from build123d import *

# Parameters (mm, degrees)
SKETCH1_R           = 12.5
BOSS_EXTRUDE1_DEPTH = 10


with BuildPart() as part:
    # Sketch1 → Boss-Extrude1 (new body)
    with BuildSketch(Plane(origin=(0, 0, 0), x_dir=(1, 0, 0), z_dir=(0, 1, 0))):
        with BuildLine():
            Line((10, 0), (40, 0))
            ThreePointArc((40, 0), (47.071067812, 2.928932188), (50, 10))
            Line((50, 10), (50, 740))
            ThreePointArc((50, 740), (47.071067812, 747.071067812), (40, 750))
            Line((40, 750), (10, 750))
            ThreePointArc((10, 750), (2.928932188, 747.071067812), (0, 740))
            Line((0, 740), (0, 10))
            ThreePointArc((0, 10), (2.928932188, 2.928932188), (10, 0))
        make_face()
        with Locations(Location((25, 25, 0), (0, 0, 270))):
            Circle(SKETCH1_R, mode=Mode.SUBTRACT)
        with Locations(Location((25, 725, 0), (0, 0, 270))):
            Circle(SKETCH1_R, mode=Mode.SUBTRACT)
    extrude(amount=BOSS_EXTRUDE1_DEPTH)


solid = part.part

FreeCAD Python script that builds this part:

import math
import FreeCAD as App
import Part
import Sketcher
from FreeCAD import Vector
Q = App.Units.Quantity

doc = App.newDocument("Part")
body = doc.addObject("PartDesign::Body", "Body")

sketch1 = doc.addObject("Sketcher::SketchObject", "Sketch")
body.addObject(sketch1)
sketch1.AttachmentSupport = (doc.XZ_Plane, [""])
sketch1.MapMode = "FlatFace"
sketch1.addGeometry([
    Part.LineSegment(Vector(10, 0, 0), Vector(40, 0, 0)),
    Part.ArcOfCircle(Part.Circle(Vector(40, -10, 0), Vector(0, 0, 1), 10), math.radians(0), math.radians(90)),
    Part.LineSegment(Vector(50, -10, 0), Vector(50, -740, 0)),
    Part.ArcOfCircle(Part.Circle(Vector(40, -740, 0), Vector(0, 0, 1), 10), math.radians(-90), math.radians(0)),
    Part.LineSegment(Vector(40, -750, 0), Vector(10, -750, 0)),
    Part.ArcOfCircle(Part.Circle(Vector(10, -740, 0), Vector(0, 0, 1), 10), math.radians(180), math.radians(270)),
    Part.LineSegment(Vector(0, -740, 0), Vector(0, -10, 0)),
    Part.ArcOfCircle(Part.Circle(Vector(10, -10, 0), Vector(0, 0, 1), 10), math.radians(90), math.radians(180)),
    Part.Circle(Vector(25, -25, 0), Vector(0, 0, 1), 12),
    Part.Circle(Vector(25, -725, 0), Vector(0, 0, 1), 12),
], False)
sketch1.addConstraint([
    Sketcher.Constraint("Tangent", 0, 2, 1, 2),
    Sketcher.Constraint("Tangent", 1, 1, 2, 1),
    Sketcher.Constraint("Tangent", 2, 2, 3, 2),
    Sketcher.Constraint("Tangent", 3, 1, 4, 1),
    Sketcher.Constraint("Tangent", 4, 2, 5, 2),
    Sketcher.Constraint("Tangent", 5, 1, 6, 1),
    Sketcher.Constraint("Tangent", 6, 2, 7, 2),
    Sketcher.Constraint("Tangent", 7, 1, 0, 1),
    Sketcher.Constraint("Horizontal", 0),
    Sketcher.Constraint("Vertical", 2),
    Sketcher.Constraint("Horizontal", 4),
    Sketcher.Constraint("Vertical", 6),
    Sketcher.Constraint("Equal", 1, 3),
    Sketcher.Constraint("Equal", 3, 5),
    Sketcher.Constraint("Equal", 5, 7),
    Sketcher.Constraint("Equal", 8, 9),
    Sketcher.Constraint("PointOnObject", 0, 2, -1),
    Sketcher.Constraint("PointOnObject", 5, 1, -2),
    Sketcher.Constraint("Vertical", 8, 3, 9, 3),
    Sketcher.Constraint("Diameter", 8, Q("25 mm")),
    Sketcher.Constraint("Radius", 1, Q("10 mm")),
    Sketcher.Constraint("DistanceX", 0, 1, 0, 2, Q("30 mm")),
    Sketcher.Constraint("DistanceY", 2, 2, 2, 1, Q("730 mm")),
    Sketcher.Constraint("DistanceX", -1, 1, 8, 3, Q("25 mm")),
    Sketcher.Constraint("DistanceY", 8, 3, -1, 1, Q("25 mm")),
    Sketcher.Constraint("DistanceY", 9, 3, -1, 1, Q("725 mm")),
])
pad1 = doc.addObject("PartDesign::Pad", "Pad")
body.addObject(pad1)
pad1.Profile = sketch1
pad1.Length = 10
pad1.Reversed = True

doc.recompute()
